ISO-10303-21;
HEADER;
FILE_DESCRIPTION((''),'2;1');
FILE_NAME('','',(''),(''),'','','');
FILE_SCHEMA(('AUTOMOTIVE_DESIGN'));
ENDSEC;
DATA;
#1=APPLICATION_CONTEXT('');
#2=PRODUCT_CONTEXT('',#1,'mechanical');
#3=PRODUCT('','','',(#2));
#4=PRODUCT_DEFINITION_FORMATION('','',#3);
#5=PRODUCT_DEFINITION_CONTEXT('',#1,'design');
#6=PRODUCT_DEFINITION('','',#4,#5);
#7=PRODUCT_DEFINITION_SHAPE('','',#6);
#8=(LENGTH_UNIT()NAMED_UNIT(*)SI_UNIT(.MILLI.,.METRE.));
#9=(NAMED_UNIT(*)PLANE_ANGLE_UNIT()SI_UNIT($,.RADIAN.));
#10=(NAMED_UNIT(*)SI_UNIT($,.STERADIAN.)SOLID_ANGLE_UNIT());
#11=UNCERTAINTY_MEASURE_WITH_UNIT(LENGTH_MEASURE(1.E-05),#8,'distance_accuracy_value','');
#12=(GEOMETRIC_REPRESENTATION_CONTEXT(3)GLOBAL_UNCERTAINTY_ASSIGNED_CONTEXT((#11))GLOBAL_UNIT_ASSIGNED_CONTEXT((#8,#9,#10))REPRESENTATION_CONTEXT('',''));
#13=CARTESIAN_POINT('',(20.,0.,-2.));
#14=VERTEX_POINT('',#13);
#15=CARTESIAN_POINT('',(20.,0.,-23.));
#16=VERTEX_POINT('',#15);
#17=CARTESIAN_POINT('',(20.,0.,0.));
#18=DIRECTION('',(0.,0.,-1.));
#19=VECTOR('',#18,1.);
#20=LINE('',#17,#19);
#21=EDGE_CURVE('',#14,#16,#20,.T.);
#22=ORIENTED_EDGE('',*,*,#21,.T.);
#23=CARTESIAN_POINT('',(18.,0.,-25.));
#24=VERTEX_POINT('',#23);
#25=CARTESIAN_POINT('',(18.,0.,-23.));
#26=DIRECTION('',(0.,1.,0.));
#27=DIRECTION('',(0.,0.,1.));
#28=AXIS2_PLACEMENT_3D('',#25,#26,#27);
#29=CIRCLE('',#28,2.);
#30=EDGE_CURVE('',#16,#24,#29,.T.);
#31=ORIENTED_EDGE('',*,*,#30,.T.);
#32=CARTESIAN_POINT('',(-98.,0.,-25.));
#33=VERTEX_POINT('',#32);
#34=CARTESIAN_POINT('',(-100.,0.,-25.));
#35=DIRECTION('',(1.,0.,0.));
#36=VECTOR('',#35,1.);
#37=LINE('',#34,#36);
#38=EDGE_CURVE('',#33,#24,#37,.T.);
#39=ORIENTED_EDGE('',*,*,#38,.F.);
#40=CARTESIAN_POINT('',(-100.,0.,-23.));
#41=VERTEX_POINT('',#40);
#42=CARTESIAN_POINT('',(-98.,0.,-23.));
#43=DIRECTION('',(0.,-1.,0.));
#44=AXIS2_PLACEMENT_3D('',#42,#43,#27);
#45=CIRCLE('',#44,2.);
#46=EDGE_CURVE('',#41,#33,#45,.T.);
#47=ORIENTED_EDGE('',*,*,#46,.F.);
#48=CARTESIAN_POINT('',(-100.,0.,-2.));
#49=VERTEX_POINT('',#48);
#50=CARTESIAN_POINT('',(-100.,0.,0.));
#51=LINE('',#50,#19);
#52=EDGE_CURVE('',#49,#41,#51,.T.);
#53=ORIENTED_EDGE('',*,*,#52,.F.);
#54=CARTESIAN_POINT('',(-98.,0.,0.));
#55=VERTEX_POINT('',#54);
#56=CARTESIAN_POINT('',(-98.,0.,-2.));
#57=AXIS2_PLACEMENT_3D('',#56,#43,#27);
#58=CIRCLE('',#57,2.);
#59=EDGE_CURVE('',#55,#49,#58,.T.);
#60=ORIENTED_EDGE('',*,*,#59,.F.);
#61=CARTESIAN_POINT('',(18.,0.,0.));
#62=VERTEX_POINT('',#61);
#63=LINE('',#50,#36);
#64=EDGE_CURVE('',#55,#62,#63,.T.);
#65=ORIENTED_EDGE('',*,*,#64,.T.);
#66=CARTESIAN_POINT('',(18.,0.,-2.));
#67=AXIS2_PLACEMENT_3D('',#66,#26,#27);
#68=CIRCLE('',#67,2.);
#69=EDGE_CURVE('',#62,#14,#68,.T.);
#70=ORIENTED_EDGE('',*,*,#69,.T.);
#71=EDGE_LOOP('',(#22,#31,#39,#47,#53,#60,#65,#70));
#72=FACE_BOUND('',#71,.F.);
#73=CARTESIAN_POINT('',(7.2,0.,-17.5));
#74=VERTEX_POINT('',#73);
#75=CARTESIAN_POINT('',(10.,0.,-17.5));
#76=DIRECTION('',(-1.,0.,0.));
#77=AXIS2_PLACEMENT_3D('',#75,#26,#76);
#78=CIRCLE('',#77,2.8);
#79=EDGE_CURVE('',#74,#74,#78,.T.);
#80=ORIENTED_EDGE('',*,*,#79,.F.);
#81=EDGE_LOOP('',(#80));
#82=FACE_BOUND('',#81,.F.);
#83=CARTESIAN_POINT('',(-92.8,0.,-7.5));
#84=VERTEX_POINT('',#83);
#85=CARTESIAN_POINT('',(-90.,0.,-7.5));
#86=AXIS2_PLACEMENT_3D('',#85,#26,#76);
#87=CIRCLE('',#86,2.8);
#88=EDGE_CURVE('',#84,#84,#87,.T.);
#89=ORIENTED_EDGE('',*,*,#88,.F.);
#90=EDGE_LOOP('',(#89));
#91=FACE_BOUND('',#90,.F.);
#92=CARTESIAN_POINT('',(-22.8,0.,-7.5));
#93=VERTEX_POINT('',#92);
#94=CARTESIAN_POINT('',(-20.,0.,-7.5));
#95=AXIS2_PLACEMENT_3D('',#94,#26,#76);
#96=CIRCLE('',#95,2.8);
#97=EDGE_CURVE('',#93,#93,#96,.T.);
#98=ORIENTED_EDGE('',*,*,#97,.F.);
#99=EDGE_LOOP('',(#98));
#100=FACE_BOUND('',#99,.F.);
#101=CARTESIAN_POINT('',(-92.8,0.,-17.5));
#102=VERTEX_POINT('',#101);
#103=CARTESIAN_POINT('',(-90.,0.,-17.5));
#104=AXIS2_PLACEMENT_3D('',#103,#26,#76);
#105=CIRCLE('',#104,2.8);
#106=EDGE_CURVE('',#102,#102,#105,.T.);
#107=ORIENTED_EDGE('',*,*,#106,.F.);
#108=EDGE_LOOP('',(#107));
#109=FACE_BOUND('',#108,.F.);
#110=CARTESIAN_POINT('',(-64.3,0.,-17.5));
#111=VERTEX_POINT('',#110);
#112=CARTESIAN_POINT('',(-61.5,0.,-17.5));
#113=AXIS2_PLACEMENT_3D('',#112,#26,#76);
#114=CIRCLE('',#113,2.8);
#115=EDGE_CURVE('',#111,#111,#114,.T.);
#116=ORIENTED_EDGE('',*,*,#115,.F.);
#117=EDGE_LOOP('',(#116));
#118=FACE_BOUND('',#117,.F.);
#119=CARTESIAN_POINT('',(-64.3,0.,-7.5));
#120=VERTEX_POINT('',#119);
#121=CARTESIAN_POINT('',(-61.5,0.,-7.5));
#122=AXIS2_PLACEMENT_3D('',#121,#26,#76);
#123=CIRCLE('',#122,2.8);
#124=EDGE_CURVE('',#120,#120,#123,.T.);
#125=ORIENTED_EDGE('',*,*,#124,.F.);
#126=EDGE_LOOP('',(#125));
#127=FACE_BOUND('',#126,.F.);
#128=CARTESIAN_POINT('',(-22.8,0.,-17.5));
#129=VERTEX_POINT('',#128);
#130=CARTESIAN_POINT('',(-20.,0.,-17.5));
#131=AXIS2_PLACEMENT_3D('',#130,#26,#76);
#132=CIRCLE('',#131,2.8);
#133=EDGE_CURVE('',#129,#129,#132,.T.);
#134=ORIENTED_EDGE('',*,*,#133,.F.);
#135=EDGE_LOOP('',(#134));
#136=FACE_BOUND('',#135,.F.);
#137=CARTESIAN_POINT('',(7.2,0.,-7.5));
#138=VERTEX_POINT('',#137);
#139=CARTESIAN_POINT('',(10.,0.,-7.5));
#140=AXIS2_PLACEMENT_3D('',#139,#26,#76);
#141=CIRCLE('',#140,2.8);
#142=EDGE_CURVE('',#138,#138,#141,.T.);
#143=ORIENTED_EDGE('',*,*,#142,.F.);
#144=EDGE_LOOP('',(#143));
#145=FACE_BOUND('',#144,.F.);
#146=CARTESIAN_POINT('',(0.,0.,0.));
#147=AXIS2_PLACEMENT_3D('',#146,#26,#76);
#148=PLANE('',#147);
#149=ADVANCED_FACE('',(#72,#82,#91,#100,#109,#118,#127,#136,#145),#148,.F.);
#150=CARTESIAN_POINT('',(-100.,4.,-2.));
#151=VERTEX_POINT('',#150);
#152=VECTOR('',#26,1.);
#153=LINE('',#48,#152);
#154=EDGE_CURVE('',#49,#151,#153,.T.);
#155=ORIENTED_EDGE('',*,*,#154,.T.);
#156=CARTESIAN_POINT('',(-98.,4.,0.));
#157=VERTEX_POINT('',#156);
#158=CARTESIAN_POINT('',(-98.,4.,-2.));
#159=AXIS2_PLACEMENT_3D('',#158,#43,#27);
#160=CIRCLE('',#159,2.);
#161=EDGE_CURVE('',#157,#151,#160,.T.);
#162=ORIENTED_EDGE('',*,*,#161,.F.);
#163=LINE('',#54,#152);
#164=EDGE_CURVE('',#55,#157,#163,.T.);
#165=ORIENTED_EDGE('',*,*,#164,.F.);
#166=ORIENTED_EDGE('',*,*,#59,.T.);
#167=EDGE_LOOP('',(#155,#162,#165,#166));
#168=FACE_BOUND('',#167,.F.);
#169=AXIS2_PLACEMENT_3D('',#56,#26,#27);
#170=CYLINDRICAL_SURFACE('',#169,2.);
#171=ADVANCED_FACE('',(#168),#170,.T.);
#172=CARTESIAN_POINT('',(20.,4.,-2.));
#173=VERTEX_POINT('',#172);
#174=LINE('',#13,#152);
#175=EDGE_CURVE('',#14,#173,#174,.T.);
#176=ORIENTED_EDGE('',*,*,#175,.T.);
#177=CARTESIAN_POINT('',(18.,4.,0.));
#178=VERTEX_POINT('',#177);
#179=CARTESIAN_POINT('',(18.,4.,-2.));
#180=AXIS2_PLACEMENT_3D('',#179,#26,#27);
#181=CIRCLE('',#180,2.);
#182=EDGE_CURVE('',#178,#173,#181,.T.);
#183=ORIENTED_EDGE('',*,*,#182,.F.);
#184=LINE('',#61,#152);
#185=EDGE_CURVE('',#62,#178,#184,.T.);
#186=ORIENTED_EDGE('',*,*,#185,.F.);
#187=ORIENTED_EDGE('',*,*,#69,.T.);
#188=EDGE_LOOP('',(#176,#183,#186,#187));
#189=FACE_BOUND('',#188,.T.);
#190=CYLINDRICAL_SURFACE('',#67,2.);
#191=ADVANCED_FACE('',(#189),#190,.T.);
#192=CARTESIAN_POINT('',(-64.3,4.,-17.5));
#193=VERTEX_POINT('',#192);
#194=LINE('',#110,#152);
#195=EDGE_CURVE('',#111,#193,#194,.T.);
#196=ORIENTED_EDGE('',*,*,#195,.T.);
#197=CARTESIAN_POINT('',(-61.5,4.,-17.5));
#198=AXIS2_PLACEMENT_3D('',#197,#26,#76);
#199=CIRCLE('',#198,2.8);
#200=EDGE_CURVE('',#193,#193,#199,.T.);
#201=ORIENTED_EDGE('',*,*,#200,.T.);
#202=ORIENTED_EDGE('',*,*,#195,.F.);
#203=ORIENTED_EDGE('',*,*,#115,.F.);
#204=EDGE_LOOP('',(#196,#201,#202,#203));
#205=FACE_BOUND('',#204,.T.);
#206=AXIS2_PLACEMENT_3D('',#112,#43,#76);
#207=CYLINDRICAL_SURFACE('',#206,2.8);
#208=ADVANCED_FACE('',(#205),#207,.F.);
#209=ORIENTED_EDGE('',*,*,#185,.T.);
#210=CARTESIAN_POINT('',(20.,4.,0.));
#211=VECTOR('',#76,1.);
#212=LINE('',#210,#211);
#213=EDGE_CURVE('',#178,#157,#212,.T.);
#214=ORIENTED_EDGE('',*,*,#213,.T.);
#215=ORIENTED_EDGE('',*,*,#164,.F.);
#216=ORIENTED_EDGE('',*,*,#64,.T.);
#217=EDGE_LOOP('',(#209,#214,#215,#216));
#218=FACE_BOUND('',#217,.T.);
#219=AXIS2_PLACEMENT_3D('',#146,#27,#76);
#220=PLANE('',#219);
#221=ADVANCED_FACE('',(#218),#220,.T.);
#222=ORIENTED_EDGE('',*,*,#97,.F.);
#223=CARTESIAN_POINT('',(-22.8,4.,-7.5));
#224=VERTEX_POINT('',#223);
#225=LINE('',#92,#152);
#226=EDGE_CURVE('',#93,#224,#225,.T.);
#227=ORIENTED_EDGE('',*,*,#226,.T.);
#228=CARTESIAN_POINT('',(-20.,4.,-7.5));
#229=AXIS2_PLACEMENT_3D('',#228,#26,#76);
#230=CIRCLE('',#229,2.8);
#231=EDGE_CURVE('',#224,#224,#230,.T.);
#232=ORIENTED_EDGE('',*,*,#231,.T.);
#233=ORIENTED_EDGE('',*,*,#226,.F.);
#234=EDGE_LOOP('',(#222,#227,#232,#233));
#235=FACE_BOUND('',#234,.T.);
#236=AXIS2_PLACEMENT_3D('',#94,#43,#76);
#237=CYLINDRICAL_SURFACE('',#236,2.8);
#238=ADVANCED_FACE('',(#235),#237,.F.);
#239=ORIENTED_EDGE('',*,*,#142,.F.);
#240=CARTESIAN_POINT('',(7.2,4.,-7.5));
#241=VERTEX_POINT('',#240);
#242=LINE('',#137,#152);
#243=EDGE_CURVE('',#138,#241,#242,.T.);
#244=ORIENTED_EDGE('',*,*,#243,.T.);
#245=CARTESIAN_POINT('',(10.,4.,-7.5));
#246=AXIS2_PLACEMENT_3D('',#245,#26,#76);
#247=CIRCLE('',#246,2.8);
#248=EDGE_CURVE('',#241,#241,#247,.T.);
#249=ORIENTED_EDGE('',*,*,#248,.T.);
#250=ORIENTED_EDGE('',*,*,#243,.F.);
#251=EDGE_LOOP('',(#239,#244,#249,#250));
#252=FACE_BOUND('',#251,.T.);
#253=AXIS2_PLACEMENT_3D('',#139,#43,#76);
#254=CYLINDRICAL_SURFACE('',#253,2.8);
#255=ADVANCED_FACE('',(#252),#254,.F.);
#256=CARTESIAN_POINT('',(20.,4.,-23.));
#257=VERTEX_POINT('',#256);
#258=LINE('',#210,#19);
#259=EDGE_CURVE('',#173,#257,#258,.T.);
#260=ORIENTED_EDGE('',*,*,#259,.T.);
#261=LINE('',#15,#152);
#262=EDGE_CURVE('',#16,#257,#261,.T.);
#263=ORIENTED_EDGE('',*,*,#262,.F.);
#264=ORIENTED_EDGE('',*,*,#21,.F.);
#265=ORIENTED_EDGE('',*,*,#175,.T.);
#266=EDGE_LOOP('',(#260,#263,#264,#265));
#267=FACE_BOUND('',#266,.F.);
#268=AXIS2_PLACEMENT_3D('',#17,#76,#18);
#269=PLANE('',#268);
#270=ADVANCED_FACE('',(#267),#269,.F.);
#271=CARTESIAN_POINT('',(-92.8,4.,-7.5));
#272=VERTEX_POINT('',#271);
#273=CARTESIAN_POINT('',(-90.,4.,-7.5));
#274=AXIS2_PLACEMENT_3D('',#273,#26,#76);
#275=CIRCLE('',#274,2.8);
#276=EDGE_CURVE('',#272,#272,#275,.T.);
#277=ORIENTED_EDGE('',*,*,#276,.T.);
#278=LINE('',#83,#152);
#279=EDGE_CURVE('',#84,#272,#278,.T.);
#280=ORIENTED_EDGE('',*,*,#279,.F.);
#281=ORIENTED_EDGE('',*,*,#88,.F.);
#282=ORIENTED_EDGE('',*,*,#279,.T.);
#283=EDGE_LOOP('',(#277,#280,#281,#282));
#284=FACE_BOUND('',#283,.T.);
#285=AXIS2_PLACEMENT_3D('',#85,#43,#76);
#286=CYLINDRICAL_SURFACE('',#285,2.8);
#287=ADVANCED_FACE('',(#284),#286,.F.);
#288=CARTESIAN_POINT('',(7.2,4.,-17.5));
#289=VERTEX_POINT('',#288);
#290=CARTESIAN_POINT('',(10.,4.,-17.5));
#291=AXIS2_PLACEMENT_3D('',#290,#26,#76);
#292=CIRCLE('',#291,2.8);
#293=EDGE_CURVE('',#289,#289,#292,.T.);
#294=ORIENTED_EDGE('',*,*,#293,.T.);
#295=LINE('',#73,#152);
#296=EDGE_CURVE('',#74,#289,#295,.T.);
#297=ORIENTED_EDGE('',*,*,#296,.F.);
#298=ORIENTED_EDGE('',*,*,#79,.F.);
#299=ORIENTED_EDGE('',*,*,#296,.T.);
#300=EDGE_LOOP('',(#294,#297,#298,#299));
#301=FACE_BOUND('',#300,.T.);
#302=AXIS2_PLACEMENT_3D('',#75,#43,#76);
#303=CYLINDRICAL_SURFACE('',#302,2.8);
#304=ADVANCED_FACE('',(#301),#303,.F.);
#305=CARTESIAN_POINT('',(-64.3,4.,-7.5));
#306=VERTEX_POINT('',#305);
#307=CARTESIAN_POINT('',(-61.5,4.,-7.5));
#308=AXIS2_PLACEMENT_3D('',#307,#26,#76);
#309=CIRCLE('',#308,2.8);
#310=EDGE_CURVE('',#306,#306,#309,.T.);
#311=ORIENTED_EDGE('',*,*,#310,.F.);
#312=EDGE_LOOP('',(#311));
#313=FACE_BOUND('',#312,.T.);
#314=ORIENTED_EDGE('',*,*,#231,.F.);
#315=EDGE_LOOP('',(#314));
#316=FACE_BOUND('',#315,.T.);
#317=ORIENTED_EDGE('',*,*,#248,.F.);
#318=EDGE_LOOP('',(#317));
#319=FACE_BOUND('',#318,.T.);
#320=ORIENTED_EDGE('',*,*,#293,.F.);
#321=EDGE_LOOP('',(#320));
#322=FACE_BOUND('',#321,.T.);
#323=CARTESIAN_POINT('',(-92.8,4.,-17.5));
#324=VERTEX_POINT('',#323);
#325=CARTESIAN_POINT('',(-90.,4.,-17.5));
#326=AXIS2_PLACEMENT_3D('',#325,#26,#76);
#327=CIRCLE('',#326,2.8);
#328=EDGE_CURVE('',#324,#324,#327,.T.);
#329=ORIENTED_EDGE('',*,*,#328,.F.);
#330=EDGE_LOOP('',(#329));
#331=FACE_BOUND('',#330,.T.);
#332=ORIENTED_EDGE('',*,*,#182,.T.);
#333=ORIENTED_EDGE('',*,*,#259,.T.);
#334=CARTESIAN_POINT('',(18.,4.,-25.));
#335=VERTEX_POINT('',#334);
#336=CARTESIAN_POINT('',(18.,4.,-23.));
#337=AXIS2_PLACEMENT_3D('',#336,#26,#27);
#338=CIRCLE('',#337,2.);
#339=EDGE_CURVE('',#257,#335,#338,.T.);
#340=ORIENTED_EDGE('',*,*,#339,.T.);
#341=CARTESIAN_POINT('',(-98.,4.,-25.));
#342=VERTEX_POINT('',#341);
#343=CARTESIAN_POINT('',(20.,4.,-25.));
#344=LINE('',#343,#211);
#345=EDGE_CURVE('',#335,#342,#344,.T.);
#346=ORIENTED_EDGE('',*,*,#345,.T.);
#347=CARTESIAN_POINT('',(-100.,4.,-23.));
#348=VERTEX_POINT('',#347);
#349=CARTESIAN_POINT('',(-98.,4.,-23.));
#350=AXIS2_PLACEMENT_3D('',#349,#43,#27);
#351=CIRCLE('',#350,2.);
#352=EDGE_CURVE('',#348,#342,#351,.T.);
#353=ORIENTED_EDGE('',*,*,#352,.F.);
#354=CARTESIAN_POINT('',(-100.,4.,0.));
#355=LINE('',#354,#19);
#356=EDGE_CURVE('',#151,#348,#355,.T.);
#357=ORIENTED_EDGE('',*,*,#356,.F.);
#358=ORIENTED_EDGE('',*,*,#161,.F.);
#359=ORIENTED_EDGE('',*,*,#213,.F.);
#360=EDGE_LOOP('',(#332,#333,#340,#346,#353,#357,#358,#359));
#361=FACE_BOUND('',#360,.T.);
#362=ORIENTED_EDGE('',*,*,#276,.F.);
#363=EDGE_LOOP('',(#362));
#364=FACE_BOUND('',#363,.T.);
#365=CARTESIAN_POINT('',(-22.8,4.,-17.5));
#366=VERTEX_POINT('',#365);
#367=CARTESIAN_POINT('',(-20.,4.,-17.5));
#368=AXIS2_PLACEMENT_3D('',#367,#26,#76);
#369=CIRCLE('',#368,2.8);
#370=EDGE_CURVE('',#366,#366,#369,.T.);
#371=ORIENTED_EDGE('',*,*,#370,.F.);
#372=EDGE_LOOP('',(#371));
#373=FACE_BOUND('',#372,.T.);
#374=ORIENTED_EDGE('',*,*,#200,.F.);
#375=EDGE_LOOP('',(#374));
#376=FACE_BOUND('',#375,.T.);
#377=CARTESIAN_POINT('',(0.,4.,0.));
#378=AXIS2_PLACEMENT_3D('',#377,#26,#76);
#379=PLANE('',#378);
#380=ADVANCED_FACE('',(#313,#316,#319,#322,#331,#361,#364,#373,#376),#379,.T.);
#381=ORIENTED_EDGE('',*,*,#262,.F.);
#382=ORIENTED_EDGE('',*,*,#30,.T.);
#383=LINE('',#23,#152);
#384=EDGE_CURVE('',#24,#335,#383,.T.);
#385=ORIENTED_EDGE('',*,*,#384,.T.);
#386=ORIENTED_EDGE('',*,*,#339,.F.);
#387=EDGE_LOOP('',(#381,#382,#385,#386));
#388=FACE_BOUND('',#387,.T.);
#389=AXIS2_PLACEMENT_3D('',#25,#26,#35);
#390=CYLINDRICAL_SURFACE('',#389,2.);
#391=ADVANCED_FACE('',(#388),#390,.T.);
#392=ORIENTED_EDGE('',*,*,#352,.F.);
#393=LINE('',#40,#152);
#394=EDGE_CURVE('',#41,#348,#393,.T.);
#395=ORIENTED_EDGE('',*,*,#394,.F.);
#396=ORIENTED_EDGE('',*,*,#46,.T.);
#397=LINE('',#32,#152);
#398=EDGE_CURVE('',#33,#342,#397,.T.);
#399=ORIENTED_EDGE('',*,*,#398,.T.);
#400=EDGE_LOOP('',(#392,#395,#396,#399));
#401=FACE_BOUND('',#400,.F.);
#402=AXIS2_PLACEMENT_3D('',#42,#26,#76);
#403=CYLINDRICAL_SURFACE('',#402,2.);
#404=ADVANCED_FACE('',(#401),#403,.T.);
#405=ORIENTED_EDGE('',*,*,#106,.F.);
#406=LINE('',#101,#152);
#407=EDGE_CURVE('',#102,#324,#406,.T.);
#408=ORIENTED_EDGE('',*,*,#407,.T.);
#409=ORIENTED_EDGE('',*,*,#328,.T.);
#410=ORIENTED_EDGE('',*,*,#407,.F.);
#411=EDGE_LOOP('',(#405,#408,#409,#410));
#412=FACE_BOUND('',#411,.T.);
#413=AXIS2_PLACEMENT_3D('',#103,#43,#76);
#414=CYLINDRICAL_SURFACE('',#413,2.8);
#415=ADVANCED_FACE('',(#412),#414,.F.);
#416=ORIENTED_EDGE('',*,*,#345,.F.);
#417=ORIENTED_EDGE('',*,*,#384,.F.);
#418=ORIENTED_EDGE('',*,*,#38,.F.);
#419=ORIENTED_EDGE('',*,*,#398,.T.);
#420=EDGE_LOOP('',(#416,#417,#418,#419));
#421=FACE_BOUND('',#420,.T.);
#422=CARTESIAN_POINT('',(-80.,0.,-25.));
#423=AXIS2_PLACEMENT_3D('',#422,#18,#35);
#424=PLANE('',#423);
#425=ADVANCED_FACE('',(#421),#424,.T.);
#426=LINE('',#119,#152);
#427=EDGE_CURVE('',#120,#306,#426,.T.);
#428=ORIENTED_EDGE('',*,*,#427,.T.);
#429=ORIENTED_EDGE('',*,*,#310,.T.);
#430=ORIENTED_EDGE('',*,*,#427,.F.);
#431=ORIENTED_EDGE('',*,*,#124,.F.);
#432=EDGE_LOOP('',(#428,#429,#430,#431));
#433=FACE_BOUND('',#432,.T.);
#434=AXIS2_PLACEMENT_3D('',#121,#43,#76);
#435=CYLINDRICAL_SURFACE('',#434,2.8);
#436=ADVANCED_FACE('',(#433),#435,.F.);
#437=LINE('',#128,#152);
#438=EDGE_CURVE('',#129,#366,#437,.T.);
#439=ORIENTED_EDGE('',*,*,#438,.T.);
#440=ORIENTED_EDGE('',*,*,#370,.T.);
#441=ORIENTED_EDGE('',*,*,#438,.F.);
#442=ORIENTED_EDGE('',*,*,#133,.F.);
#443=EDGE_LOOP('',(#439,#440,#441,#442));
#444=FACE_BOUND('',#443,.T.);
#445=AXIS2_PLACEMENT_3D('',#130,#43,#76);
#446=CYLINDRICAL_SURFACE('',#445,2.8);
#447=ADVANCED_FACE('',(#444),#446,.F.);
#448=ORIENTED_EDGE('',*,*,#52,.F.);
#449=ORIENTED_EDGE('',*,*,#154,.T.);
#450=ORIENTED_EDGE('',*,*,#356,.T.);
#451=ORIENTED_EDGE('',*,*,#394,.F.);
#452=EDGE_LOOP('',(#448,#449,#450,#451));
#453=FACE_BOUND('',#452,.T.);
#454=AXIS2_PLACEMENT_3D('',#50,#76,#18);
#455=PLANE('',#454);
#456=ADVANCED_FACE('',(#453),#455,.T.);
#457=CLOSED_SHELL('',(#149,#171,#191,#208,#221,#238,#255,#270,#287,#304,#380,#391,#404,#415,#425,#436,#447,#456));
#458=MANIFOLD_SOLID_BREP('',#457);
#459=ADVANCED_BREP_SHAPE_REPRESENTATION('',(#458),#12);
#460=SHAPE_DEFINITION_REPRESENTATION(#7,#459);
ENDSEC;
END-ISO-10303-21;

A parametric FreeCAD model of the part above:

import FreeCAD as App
import Part
import Sketcher
from FreeCAD import Vector
Q = App.Units.Quantity


def edges_at(feature, points):
    """Names of the edges that pass closest to the given points."""
    edges = feature.Shape.Edges
    near = lambda p: min(range(len(edges)), key=lambda i: edges[i].distToShape(Part.Vertex(*p))[0])
    return sorted({f"Edge{near(p) + 1}" for p in points})

doc = App.newDocument("Part")
params = doc.addObject("Spreadsheet::Sheet", "Params")
for row, (alias, value) in enumerate([
    ("sketch1_diameter", "5.6 mm"),
    ("sketch1_height", "25 mm"),
    ("pad1_length", "4 mm"),
    ("fillet_radius", "2 mm"),
], start=1):
    params.set(f"A{row}", alias)
    params.set(f"B{row}", "=" + value)
    params.setAlias(f"B{row}", alias)

body = doc.addObject("PartDesign::Body", "Body")

# Sketch on XZ plane
sketch1 = body.newObject("Sketcher::SketchObject", "Sketch")
sketch1.AttachmentSupport = (doc.getObject("XZ_Plane"), [""])
sketch1.MapMode = "FlatFace"
sketch1.addGeometry([
    Part.LineSegment(Vector(20, 0, 0), Vector(20, -25, 0)),  # 0
    Part.LineSegment(Vector(20, -25, 0), Vector(-100, -25, 0)),  # 1
    Part.LineSegment(Vector(-100, -25, 0), Vector(-100, 0, 0)),  # 2
    Part.LineSegment(Vector(-100, 0, 0), Vector(20, 0, 0)),  # 3
    Part.Circle(Vector(-20, -17.5, 0), Vector(0, 0, 1), 2.8),  # 4
    Part.Circle(Vector(-61.5, -17.5, 0), Vector(0, 0, 1), 2.8),  # 5
    Part.Circle(Vector(-20, -7.5, 0), Vector(0, 0, 1), 2.8),  # 6
    Part.Circle(Vector(-61.5, -7.5, 0), Vector(0, 0, 1), 2.8),  # 7
    Part.Circle(Vector(-90, -7.5, 0), Vector(0, 0, 1), 2.8),  # 8
    Part.Circle(Vector(-90, -17.5, 0), Vector(0, 0, 1), 2.8),  # 9
    Part.Circle(Vector(10, -7.5, 0), Vector(0, 0, 1), 2.8),  # 10
    Part.Circle(Vector(10, -17.5, 0), Vector(0, 0, 1), 2.8),  # 11
], False)
sketch1.addConstraint([
    Sketcher.Constraint("Coincident", 0, 2, 1, 1),
    Sketcher.Constraint("Coincident", 1, 2, 2, 1),
    Sketcher.Constraint("Coincident", 2, 2, 3, 1),
    Sketcher.Constraint("Coincident", 3, 2, 0, 1),
    Sketcher.Constraint("Vertical", 0),
    Sketcher.Constraint("Horizontal", 1),
    Sketcher.Constraint("Vertical", 2),
    Sketcher.Constraint("Horizontal", 3),
    Sketcher.Constraint("Equal", 4, 5),
    Sketcher.Constraint("Equal", 5, 6),
    Sketcher.Constraint("Equal", 6, 7),
    Sketcher.Constraint("Equal", 7, 8),
    Sketcher.Constraint("Equal", 8, 9),
    Sketcher.Constraint("Equal", 9, 10),
    Sketcher.Constraint("Equal", 10, 11),
    Sketcher.Constraint("PointOnObject", 2, 2, -1),
    Sketcher.Constraint("Horizontal", 4, 3, 5, 3),
    Sketcher.Constraint("Horizontal", 6, 3, 7, 3),
    Sketcher.Constraint("Horizontal", 7, 3, 8, 3),
    Sketcher.Constraint("Horizontal", 5, 3, 9, 3),
    Sketcher.Constraint("Horizontal", 8, 3, 10, 3),
    Sketcher.Constraint("Horizontal", 9, 3, 11, 3),
    Sketcher.Constraint("Vertical", 4, 3, 6, 3),
    Sketcher.Constraint("Vertical", 5, 3, 7, 3),
    Sketcher.Constraint("Vertical", 8, 3, 9, 3),
    Sketcher.Constraint("Vertical", 10, 3, 11, 3),
    Sketcher.Constraint("Diameter", 4, Q("5.6 mm")),
    Sketcher.Constraint("DistanceY", 0, 2, 0, 1, Q("25 mm")),
    Sketcher.Constraint("DistanceX", 4, 3, -1, 1, Q("20 mm")),
    Sketcher.Constraint("DistanceX", -1, 1, 10, 3, Q("10 mm")),
    Sketcher.Constraint("DistanceX", -1, 1, 0, 2, Q("20 mm")),
    Sketcher.Constraint("DistanceY", 4, 3, 6, 3, Q("10 mm")),
    Sketcher.Constraint("DistanceX", 1, 2, 9, 3, Q("10 mm")),
    Sketcher.Constraint("DistanceX", 1, 2, 4, 3, Q("80 mm")),
    Sketcher.Constraint("DistanceY", 4, 3, -1, 1, Q("17.5 mm")),
    Sketcher.Constraint("DistanceX", 5, 3, -1, 1, Q("61.5 mm")),
])
sketch1.setExpression("Constraints[26]", "Params.sketch1_diameter")
sketch1.setExpression("Constraints[27]", "Params.sketch1_height")
pad1 = body.newObject("PartDesign::Pad", "Pad")
pad1.Profile = sketch1
pad1.setExpression("Length", "Params.pad1_length")
pad1.Reversed = True
doc.recompute()

fillet = body.newObject("PartDesign::Fillet", "Fillet")
fillet.Base = (pad1, edges_at(pad1, [
    (-100, 2, 0),
    (20, 2, 0),
    (20, 2, -25),
    (-100, 2, -25),
]))
fillet.setExpression("Radius", "Params.fillet_radius")

doc.recompute()
